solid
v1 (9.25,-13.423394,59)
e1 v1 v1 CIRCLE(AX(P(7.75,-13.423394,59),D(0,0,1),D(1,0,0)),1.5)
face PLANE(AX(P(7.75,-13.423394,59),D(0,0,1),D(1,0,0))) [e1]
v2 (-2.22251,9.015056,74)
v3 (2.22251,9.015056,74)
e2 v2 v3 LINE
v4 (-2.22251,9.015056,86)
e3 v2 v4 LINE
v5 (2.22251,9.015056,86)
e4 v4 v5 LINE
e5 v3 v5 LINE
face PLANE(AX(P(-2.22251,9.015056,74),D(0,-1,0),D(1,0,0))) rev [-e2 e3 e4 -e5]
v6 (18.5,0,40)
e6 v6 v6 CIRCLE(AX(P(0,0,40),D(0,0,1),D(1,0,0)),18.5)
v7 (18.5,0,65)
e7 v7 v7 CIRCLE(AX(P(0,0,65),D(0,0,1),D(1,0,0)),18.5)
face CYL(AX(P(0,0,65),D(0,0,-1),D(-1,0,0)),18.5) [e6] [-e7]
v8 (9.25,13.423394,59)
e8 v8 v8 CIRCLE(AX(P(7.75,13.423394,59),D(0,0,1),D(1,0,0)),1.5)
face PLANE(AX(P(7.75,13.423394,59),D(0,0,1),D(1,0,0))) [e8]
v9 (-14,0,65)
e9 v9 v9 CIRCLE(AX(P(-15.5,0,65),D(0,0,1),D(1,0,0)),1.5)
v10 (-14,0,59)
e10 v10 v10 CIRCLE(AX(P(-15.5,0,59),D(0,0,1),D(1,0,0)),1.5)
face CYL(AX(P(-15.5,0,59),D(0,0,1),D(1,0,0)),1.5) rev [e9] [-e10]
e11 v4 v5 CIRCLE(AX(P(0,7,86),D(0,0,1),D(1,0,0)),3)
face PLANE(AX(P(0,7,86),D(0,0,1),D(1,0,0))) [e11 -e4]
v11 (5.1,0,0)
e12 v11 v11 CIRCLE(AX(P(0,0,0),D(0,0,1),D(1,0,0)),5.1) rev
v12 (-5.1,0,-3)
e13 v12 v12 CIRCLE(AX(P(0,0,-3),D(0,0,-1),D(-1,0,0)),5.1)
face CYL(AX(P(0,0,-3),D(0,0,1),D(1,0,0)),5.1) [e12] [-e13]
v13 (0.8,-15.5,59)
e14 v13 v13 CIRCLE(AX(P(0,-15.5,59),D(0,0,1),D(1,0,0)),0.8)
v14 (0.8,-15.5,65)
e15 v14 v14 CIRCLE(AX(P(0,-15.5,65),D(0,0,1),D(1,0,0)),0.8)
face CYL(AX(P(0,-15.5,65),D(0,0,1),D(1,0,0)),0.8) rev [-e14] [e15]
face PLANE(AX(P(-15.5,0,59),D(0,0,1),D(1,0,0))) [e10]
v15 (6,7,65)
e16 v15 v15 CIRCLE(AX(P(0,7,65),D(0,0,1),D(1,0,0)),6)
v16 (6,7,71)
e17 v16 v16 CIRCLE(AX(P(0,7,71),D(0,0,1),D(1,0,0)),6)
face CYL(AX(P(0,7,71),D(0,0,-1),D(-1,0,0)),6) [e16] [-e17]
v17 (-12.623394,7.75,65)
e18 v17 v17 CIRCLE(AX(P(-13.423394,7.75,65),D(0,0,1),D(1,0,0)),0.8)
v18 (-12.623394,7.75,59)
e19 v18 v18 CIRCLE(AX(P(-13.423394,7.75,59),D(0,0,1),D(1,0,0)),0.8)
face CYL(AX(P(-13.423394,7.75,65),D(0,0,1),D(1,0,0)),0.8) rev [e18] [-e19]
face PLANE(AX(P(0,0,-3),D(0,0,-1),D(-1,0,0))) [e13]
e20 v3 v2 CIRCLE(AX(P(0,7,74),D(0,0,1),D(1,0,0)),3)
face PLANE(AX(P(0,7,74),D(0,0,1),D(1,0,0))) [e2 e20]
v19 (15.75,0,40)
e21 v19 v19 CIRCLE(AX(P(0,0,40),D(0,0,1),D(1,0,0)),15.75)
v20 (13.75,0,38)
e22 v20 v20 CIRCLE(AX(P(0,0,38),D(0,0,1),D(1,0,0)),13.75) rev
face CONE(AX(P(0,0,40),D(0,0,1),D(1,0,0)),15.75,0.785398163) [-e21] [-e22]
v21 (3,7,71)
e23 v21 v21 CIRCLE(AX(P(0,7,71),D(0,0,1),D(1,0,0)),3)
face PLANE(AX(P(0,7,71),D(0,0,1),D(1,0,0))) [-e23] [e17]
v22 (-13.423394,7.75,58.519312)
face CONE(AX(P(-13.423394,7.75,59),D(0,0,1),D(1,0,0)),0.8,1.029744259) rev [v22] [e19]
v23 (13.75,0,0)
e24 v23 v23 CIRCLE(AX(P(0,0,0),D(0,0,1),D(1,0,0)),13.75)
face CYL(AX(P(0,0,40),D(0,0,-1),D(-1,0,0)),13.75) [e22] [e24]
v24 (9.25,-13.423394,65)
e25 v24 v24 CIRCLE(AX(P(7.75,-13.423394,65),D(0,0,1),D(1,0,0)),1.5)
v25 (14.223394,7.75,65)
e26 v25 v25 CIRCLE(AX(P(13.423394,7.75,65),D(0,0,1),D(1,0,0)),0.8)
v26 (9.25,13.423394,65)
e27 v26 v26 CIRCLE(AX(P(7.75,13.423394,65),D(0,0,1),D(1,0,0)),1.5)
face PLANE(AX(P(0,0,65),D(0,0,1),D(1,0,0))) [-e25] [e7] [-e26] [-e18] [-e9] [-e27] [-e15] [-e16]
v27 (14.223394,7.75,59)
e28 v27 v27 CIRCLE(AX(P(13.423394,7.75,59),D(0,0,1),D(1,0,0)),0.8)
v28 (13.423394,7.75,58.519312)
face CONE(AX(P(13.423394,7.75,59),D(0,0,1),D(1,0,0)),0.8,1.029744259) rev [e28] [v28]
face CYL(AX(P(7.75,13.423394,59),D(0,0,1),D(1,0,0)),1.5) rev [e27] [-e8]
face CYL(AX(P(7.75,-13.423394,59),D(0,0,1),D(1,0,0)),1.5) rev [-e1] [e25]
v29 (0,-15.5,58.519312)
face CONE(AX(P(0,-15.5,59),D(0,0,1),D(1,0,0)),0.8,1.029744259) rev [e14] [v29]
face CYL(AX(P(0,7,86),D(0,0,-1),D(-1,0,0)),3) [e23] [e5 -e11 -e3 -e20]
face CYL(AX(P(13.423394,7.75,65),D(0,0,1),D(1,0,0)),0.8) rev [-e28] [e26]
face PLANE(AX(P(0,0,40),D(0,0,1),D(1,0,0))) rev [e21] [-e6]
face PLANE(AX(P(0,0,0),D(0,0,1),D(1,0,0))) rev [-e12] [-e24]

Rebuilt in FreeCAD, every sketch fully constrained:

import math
import FreeCAD as App
import Part
import Sketcher

V = App.Vector
Q = App.Units.Quantity


def edges_at(feature, points):
    """Names of the edges that pass closest to the given points."""
    edges = feature.Shape.Edges
    near = lambda p: min(range(len(edges)), key=lambda i: edges[i].distToShape(Part.Vertex(*p))[0])
    return sorted({f"Edge{near(p) + 1}" for p in points})

doc = App.newDocument("Part")
body = doc.addObject("PartDesign::Body", "Body")

sketch1 = body.newObject("Sketcher::SketchObject", "Sketch")
sketch1.AttachmentSupport = (doc.getObject("XY_Plane"), [""])
sketch1.MapMode = "FlatFace"
sketch1.addGeometry(Part.Circle(V(0, 0, 0), V(0, 0, 1), 13.75), False)
sketch1.addConstraint(Sketcher.Constraint("Coincident", 0, 3, -1, 1))
sketch1.addConstraint(Sketcher.Constraint("Diameter", 0, Q("27.5 mm")))
pad1 = body.newObject("PartDesign::Pad", "Pad")
pad1.Profile = sketch1
pad1.Length = 40

sketch2 = body.newObject("Sketcher::SketchObject", "Sketch001")
sketch2.AttachmentSupport = (doc.getObject("XY_Plane"), [""])
sketch2.MapMode = "FlatFace"
sketch2.AttachmentOffset = App.Placement(V(0, 0, 40), App.Rotation())
sketch2.addGeometry(Part.Circle(V(0, 0, 0), V(0, 0, 1), 18.5), False)
sketch2.addConstraint(Sketcher.Constraint("Coincident", 0, 3, -1, 1))
sketch2.addConstraint(Sketcher.Constraint("Diameter", 0, Q("37 mm")))
pad2 = body.newObject("PartDesign::Pad", "Pad001")
pad2.Profile = sketch2
pad2.Length = 25
doc.recompute()

chamfer = body.newObject("PartDesign::Chamfer", "Chamfer")
chamfer.Base = (pad2, edges_at(pad2, [(-13.75, 0, 40)]))
chamfer.Size = 2

sketch3 = body.newObject("Sketcher::SketchObject", "Sketch002")
sketch3.AttachmentSupport = (doc.getObject("XY_Plane"), [""])
sketch3.MapMode = "FlatFace"
sketch3.AttachmentOffset = App.Placement(V(0, 0, 65), App.Rotation())
sketch3.addGeometry(Part.Circle(V(0, 7, 0), V(0, 0, 1), 6), False)
sketch3.addConstraint(Sketcher.Constraint("PointOnObject", 0, 3, -2))
sketch3.addConstraint(Sketcher.Constraint("Diameter", 0, Q("12 mm")))
sketch3.addConstraint(Sketcher.Constraint("DistanceY", -1, 1, 0, 3, Q("7 mm")))
pad3 = body.newObject("PartDesign::Pad", "Pad002")
pad3.Profile = sketch3
pad3.Length = 6

sketch4 = body.newObject("Sketcher::SketchObject", "Sketch003")
sketch4.AttachmentSupport = (doc.getObject("XY_Plane"), [""])
sketch4.MapMode = "FlatFace"
sketch4.AttachmentOffset = App.Placement(V(0, 0, 71), App.Rotation())
sketch4.addGeometry(Part.Circle(V(0, 7, 0), V(0, 0, 1), 3), False)
sketch4.addConstraint(Sketcher.Constraint("PointOnObject", 0, 3, -2))
sketch4.addConstraint(Sketcher.Constraint("Diameter", 0, Q("6 mm")))
sketch4.addConstraint(Sketcher.Constraint("DistanceY", -1, 1, 0, 3, Q("7 mm")))
pad4 = body.newObject("PartDesign::Pad", "Pad003")
pad4.Profile = sketch4
pad4.Length = 15

sketch5 = body.newObject("Sketcher::SketchObject", "Sketch004")
sketch5.AttachmentSupport = (doc.getObject("XY_Plane"), [""])
sketch5.MapMode = "FlatFace"
sketch5.AttachmentOffset = App.Placement(V(0, 0, 86), App.Rotation())
sketch5.addGeometry(Part.LineSegment(V(-2.22251, 9.015056, 0), V(2.22251, 9.015056, 0)), False)
sketch5.addGeometry(Part.ArcOfCircle(Part.Circle(V(0, 7, 0), V(0, 0, 1), 3), math.radians(42.197274), math.radians(137.802726)), False)
sketch5.addConstraint(Sketcher.Constraint("Coincident", 0, 1, 1, 2))
sketch5.addConstraint(Sketcher.Constraint("Coincident", 1, 1, 0, 2))
sketch5.addConstraint(Sketcher.Constraint("Horizontal", 0))
sketch5.addConstraint(Sketcher.Constraint("PointOnObject", 1, 3, -2))
sketch5.addConstraint(Sketcher.Constraint("Radius", 1, Q("3 mm")))
sketch5.addConstraint(Sketcher.Constraint("DistanceY", -1, 1, 1, 3, Q("7 mm")))
sketch5.addConstraint(Sketcher.Constraint("DistanceX", 0, 1, 0, 2, Q("4.445019 mm")))
pocket1 = body.newObject("PartDesign::Pocket", "Pocket")
pocket1.Profile = sketch5
pocket1.Length = 12

sketch6 = body.newObject("Sketcher::SketchObject", "Sketch005")
sketch6.AttachmentSupport = (doc.getObject("XY_Plane"), [""])
sketch6.MapMode = "FlatFace"
sketch6.AttachmentOffset = App.Placement(V(0, 0, 65), App.Rotation())
sketch6.addGeometry(Part.Circle(V(-15.5, 0, 0), V(0, 0, 1), 1.5), False)
sketch6.addConstraint(Sketcher.Constraint("PointOnObject", 0, 3, -1))
sketch6.addConstraint(Sketcher.Constraint("Diameter", 0, Q("3 mm")))
sketch6.addConstraint(Sketcher.Constraint("DistanceX", 0, 3, -1, 1, Q("15.5 mm")))
pocket2 = body.newObject("PartDesign::Pocket", "Pocket001")
pocket2.Profile = sketch6
pocket2.Length = 6

sketch7 = body.newObject("Sketcher::SketchObject", "Sketch006")
sketch7.AttachmentSupport = (doc.getObject("XY_Plane"), [""])
sketch7.MapMode = "FlatFace"
sketch7.AttachmentOffset = App.Placement(V(0, 0, 65), App.Rotation())
sketch7.addGeometry(Part.Circle(V(7.75, -13.423394, 0), V(0, 0, 1), 1.5), False)
sketch7.addConstraint(Sketcher.Constraint("Diameter", 0, Q("3 mm")))
sketch7.addConstraint(Sketcher.Constraint("DistanceX", -1, 1, 0, 3, Q("7.75 mm")))
sketch7.addConstraint(Sketcher.Constraint("DistanceY", 0, 3, -1, 1, Q("13.423394 mm")))
pocket3 = body.newObject("PartDesign::Pocket", "Pocket002")
pocket3.Profile = sketch7
pocket3.Length = 6

sketch8 = body.newObject("Sketcher::SketchObject", "Sketch007")
sketch8.AttachmentSupport = (doc.getObject("XY_Plane"), [""])
sketch8.MapMode = "FlatFace"
sketch8.AttachmentOffset = App.Placement(V(0, 0, 65), App.Rotation())
sketch8.addGeometry(Part.Circle(V(7.75, 13.423394, 0), V(0, 0, 1), 1.5), False)
sketch8.addConstraint(Sketcher.Constraint("Diameter", 0, Q("3 mm")))
sketch8.addConstraint(Sketcher.Constraint("DistanceX", -1, 1, 0, 3, Q("7.75 mm")))
sketch8.addConstraint(Sketcher.Constraint("DistanceY", -1, 1, 0, 3, Q("13.423394 mm")))
pocket4 = body.newObject("PartDesign::Pocket", "Pocket003")
pocket4.Profile = sketch8
pocket4.Length = 6

sketch9 = body.newObject("Sketcher::SketchObject", "Sketch008")
sketch9.AttachmentSupport = (doc.getObject("XY_Plane"), [""])
sketch9.MapMode = "FlatFace"
sketch9.addGeometry(Part.Circle(V(0, 0, 0), V(0, 0, 1), 5.1), False)
sketch9.addConstraint(Sketcher.Constraint("Coincident", 0, 3, -1, 1))
sketch9.addConstraint(Sketcher.Constraint("Diameter", 0, Q("10.2 mm")))
pad5 = body.newObject("PartDesign::Pad", "Pad004")
pad5.Profile = sketch9
pad5.Length = 3
pad5.Reversed = True

sketch10 = body.newObject("Sketcher::SketchObject", "Sketch009")
sketch10.AttachmentSupport = (doc.getObject("XY_Plane"), [""])
sketch10.MapMode = "FlatFace"
sketch10.AttachmentOffset = App.Placement(V(0, 0, 65), App.Rotation())
sketch10.addGeometry(Part.Circle(V(-13.423394, 7.75, 0), V(0, 0, 1), 0.8), False)
sketch10.addGeometry(Part.Circle(V(0, -15.5, 0), V(0, 0, 1), 0.8), False)
sketch10.addGeometry(Part.Circle(V(13.423394, 7.75, 0), V(0, 0, 1), 0.8), False)
sketch10.addConstraint(Sketcher.Constraint("Equal", 0, 1))
sketch10.addConstraint(Sketcher.Constraint("Equal", 1, 2))
sketch10.addConstraint(Sketcher.Constraint("Symmetric", 0, 3, 2, 3, -2))
sketch10.addConstraint(Sketcher.Constraint("PointOnObject", 1, 3, -2))
sketch10.addConstraint(Sketcher.Constraint("Diameter", 0, Q("1.6 mm")))
sketch10.addConstraint(Sketcher.Constraint("DistanceY", 1, 3, -1, 1, Q("15.5 mm")))
sketch10.addConstraint(Sketcher.Constraint("DistanceY", -1, 1, 0, 3, Q("7.75 mm")))
sketch10.addConstraint(Sketcher.Constraint("DistanceX", 0, 3, -1, 1, Q("13.423394 mm")))
doc.recompute()
hole = body.newObject("PartDesign::Hole", "Hole")
hole.Profile = sketch10
hole.ThreadType = "None"
hole.Diameter = 1.6
hole.DepthType = "Dimension"
hole.Depth = 6
hole.DrillPoint = "Angled"
hole.DrillPointAngle = 118

doc.recompute()
